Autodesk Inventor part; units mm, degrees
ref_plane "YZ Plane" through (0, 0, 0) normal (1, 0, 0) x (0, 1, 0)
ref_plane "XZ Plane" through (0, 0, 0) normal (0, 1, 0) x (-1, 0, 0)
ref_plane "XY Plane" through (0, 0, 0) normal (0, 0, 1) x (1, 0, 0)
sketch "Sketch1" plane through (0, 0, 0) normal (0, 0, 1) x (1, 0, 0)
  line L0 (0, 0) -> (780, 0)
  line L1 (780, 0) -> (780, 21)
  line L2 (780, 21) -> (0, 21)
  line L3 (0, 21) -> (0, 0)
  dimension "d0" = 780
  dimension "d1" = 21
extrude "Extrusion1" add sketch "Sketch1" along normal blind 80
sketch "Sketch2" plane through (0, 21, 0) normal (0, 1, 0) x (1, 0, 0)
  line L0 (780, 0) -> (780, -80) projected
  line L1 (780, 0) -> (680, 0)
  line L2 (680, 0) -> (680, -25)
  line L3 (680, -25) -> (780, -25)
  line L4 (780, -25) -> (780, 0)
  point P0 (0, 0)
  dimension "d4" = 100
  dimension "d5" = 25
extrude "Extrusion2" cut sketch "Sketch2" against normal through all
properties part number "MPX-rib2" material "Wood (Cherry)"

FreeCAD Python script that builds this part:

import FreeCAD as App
import Part
import Sketcher
from FreeCAD import Vector
Q = App.Units.Quantity


def add_polygon(sketch, points):
    """Adds a closed chain of lines whose ends are joined by coincident constraints."""
    first, n = sketch.GeometryCount, len(points)
    for a, b in zip(points, points[1:] + points[:1]):
        sketch.addGeometry(Part.LineSegment(App.Vector(*a, 0), App.Vector(*b, 0)), False)
    for i in range(n):
        sketch.addConstraint(Sketcher.Constraint("Coincident", first + i, 2, first + (i + 1) % n, 1))

doc = App.newDocument("Part")
params = doc.addObject("Spreadsheet::Sheet", "Params")
for row, (alias, value) in enumerate([
    ("sketch1_width", "780 mm"),
    ("sketch1_height", "21 mm"),
    ("pad1_length", "80 mm"),
    ("sketch2_width", "100 mm"),
    ("sketch2_height", "25 mm"),
], start=1):
    params.set(f"A{row}", alias)
    params.set(f"B{row}", "=" + value)
    params.setAlias(f"B{row}", alias)

body = doc.addObject("PartDesign::Body", "Body")

sketch1 = body.newObject("Sketcher::SketchObject", "Sketch")
sketch1.AttachmentSupport = (doc.getObject("XY_Plane"), [""])
sketch1.MapMode = "FlatFace"
add_polygon(sketch1, [(0, 21), (0, 0), (780, 0), (780, 21)])
sketch1.addConstraint([
    Sketcher.Constraint("Vertical", 0),
    Sketcher.Constraint("Horizontal", 1),
    Sketcher.Constraint("Vertical", 2),
    Sketcher.Constraint("Horizontal", 3),
    Sketcher.Constraint("Coincident", 0, 2, -1, 1),
    Sketcher.Constraint("DistanceX", 1, 1, 1, 2, Q("780 mm")),
    Sketcher.Constraint("DistanceY", 0, 2, 0, 1, Q("21 mm")),
])
sketch1.setExpression("Constraints[9]", "Params.sketch1_width")
sketch1.setExpression("Constraints[10]", "Params.sketch1_height")
pad1 = body.newObject("PartDesign::Pad", "Pad")
pad1.Profile = sketch1
pad1.setExpression("Length", "Params.pad1_length")

sketch2 = body.newObject("Sketcher::SketchObject", "Sketch001")
sketch2.AttachmentSupport = (doc.getObject("XZ_Plane"), [""])
sketch2.MapMode = "FlatFace"
sketch2.AttachmentOffset = App.Placement(Vector(0, 0, -21), App.Rotation())
add_polygon(sketch2, [(780, 25), (780, 0), (680, 0), (680, 25)])
sketch2.addConstraint([
    Sketcher.Constraint("Vertical", 0),
    Sketcher.Constraint("Horizontal", 1),
    Sketcher.Constraint("Vertical", 2),
    Sketcher.Constraint("Horizontal", 3),
    Sketcher.Constraint("PointOnObject", 0, 2, -1),
    Sketcher.Constraint("DistanceX", 1, 2, 1, 1, Q("100 mm")),
    Sketcher.Constraint("DistanceY", 0, 2, 0, 1, Q("25 mm")),
    Sketcher.Constraint("DistanceX", -1, 1, 0, 2, Q("780 mm")),
])
sketch2.setExpression("Constraints[9]", "Params.sketch2_width")
sketch2.setExpression("Constraints[10]", "Params.sketch2_height")
pocket1 = body.newObject("PartDesign::Pocket", "Pocket")
pocket1.Profile = sketch2
pocket1.Type = "ThroughAll"
pocket1.Reversed = True

doc.recompute()
